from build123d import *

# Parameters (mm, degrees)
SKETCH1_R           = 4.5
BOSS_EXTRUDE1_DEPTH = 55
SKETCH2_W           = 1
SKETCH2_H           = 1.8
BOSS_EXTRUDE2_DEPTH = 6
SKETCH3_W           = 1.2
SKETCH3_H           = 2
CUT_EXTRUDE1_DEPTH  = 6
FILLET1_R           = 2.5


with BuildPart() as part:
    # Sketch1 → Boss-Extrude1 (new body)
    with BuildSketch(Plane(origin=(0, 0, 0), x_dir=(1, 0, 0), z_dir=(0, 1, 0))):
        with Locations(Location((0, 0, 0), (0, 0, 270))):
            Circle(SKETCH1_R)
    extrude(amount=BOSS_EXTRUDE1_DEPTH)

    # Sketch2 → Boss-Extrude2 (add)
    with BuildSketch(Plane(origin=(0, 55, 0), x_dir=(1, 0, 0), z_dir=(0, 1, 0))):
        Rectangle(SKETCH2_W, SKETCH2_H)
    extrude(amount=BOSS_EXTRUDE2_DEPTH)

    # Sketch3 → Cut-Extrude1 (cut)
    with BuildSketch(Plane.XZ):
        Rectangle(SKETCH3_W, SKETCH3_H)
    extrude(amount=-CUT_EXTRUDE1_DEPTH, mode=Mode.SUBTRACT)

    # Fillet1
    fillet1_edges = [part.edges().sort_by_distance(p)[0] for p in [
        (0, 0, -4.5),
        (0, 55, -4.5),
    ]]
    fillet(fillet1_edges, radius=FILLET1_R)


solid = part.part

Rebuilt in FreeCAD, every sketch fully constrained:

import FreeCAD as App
import Part
import Sketcher


def edges_at(feature, points):
    """Names of the edges that pass closest to the given points."""
    edges = feature.Shape.Edges
    near = lambda p: min(range(len(edges)), key=lambda i: edges[i].distToShape(Part.Vertex(*p))[0])
    return sorted({f"Edge{near(p) + 1}" for p in points})


def add_polygon(sketch, points):
    """Adds a closed chain of lines whose ends are joined by coincident constraints."""
    first, n = sketch.GeometryCount, len(points)
    for a, b in zip(points, points[1:] + points[:1]):
        sketch.addGeometry(Part.LineSegment(App.Vector(*a, 0), App.Vector(*b, 0)), False)
    for i in range(n):
        sketch.addConstraint(Sketcher.Constraint("Coincident", first + i, 2, first + (i + 1) % n, 1))

doc = App.newDocument("Part")
params = doc.addObject("Spreadsheet::Sheet", "Params")
for row, (alias, value) in enumerate([
    ("sketch1_diameter", "9 mm"),
    ("pad1_length", "55 mm"),
    ("sketch2_width", "1 mm"),
    ("sketch2_height", "1.8 mm"),
    ("pad2_length", "6 mm"),
    ("sketch3_height", "2 mm"),
    ("sketch3_width", "1.2 mm"),
    ("pocket1_length", "6 mm"),
    ("fillet_radius", "2.5 mm"),
], start=1):
    params.set(f"A{row}", alias)
    params.set(f"B{row}", "=" + value)
    params.setAlias(f"B{row}", alias)

body = doc.addObject("PartDesign::Body", "Body")

# Sketch on XZ plane
sketch1 = body.newObject("Sketcher::SketchObject", "Sketch")
sketch1.AttachmentSupport = (doc.getObject("XZ_Plane"), [""])
sketch1.MapMode = "FlatFace"
sketch1.addGeometry(Part.Circle(App.Vector(0, 0, 0), App.Vector(0, 0, 1), 4.5), False)
sketch1.addConstraint([
    Sketcher.Constraint("Coincident", 0, 3, -1, 1),
    Sketcher.Constraint("Diameter", 0, 9.0),
])
sketch1.setExpression("Constraints[1]", "Params.sketch1_diameter")
pad1 = body.newObject("PartDesign::Pad", "Pad")
pad1.Profile = sketch1
pad1.setExpression("Length", "Params.pad1_length")
pad1.Reversed = True

# Sketch on XZ plane
sketch2 = body.newObject("Sketcher::SketchObject", "Sketch001")
sketch2.AttachmentSupport = (doc.getObject("XZ_Plane"), [""])
sketch2.MapMode = "FlatFace"
sketch2.AttachmentOffset = App.Placement(App.Vector(0, 0, -55), App.Rotation())
add_polygon(sketch2, [(-0.5, -0.9), (-0.5, 0.9), (0.5, 0.9), (0.5, -0.9)])  # lines 0-3
sketch2.addConstraint([
    Sketcher.Constraint("Vertical", 0),
    Sketcher.Constraint("Horizontal", 1),
    Sketcher.Constraint("Vertical", 2),
    Sketcher.Constraint("Horizontal", 3),
    Sketcher.Constraint("Symmetric", 0, 2, 2, 2, -1, 1),
    Sketcher.Constraint("DistanceX", 1, 1, 1, 2, 1.0),
    Sketcher.Constraint("DistanceY", 0, 1, 0, 2, 1.8),
])
sketch2.setExpression("Constraints[9]", "Params.sketch2_width")
sketch2.setExpression("Constraints[10]", "Params.sketch2_height")
pad2 = body.newObject("PartDesign::Pad", "Pad001")
pad2.Profile = sketch2
pad2.setExpression("Length", "Params.pad2_length")
pad2.Reversed = True

# Sketch on XZ plane
sketch3 = body.newObject("Sketcher::SketchObject", "Sketch002")
sketch3.AttachmentSupport = (doc.getObject("XZ_Plane"), [""])
sketch3.MapMode = "FlatFace"
add_polygon(sketch3, [(-0.6, 1), (-0.6, -1), (0.6, -1), (0.6, 1)])  # lines 0-3
sketch3.addConstraint([
    Sketcher.Constraint("Vertical", 0),
    Sketcher.Constraint("Horizontal", 1),
    Sketcher.Constraint("Vertical", 2),
    Sketcher.Constraint("Horizontal", 3),
    Sketcher.Constraint("Symmetric", 0, 2, 2, 2, -1, 1),
    Sketcher.Constraint("DistanceY", 0, 2, 0, 1, 2.0),
    Sketcher.Constraint("DistanceX", 1, 1, 1, 2, 1.2),
])
sketch3.setExpression("Constraints[9]", "Params.sketch3_height")
sketch3.setExpression("Constraints[10]", "Params.sketch3_width")
pocket1 = body.newObject("PartDesign::Pocket", "Pocket")
pocket1.Profile = sketch3
pocket1.setExpression("Length", "Params.pocket1_length")
doc.recompute()

fillet = body.newObject("PartDesign::Fillet", "Fillet")
fillet.Base = (pocket1, edges_at(pocket1, [(0, 0, -4.5), (0, 55, -4.5)]))
fillet.setExpression("Radius", "Params.fillet_radius")

doc.recompute()
